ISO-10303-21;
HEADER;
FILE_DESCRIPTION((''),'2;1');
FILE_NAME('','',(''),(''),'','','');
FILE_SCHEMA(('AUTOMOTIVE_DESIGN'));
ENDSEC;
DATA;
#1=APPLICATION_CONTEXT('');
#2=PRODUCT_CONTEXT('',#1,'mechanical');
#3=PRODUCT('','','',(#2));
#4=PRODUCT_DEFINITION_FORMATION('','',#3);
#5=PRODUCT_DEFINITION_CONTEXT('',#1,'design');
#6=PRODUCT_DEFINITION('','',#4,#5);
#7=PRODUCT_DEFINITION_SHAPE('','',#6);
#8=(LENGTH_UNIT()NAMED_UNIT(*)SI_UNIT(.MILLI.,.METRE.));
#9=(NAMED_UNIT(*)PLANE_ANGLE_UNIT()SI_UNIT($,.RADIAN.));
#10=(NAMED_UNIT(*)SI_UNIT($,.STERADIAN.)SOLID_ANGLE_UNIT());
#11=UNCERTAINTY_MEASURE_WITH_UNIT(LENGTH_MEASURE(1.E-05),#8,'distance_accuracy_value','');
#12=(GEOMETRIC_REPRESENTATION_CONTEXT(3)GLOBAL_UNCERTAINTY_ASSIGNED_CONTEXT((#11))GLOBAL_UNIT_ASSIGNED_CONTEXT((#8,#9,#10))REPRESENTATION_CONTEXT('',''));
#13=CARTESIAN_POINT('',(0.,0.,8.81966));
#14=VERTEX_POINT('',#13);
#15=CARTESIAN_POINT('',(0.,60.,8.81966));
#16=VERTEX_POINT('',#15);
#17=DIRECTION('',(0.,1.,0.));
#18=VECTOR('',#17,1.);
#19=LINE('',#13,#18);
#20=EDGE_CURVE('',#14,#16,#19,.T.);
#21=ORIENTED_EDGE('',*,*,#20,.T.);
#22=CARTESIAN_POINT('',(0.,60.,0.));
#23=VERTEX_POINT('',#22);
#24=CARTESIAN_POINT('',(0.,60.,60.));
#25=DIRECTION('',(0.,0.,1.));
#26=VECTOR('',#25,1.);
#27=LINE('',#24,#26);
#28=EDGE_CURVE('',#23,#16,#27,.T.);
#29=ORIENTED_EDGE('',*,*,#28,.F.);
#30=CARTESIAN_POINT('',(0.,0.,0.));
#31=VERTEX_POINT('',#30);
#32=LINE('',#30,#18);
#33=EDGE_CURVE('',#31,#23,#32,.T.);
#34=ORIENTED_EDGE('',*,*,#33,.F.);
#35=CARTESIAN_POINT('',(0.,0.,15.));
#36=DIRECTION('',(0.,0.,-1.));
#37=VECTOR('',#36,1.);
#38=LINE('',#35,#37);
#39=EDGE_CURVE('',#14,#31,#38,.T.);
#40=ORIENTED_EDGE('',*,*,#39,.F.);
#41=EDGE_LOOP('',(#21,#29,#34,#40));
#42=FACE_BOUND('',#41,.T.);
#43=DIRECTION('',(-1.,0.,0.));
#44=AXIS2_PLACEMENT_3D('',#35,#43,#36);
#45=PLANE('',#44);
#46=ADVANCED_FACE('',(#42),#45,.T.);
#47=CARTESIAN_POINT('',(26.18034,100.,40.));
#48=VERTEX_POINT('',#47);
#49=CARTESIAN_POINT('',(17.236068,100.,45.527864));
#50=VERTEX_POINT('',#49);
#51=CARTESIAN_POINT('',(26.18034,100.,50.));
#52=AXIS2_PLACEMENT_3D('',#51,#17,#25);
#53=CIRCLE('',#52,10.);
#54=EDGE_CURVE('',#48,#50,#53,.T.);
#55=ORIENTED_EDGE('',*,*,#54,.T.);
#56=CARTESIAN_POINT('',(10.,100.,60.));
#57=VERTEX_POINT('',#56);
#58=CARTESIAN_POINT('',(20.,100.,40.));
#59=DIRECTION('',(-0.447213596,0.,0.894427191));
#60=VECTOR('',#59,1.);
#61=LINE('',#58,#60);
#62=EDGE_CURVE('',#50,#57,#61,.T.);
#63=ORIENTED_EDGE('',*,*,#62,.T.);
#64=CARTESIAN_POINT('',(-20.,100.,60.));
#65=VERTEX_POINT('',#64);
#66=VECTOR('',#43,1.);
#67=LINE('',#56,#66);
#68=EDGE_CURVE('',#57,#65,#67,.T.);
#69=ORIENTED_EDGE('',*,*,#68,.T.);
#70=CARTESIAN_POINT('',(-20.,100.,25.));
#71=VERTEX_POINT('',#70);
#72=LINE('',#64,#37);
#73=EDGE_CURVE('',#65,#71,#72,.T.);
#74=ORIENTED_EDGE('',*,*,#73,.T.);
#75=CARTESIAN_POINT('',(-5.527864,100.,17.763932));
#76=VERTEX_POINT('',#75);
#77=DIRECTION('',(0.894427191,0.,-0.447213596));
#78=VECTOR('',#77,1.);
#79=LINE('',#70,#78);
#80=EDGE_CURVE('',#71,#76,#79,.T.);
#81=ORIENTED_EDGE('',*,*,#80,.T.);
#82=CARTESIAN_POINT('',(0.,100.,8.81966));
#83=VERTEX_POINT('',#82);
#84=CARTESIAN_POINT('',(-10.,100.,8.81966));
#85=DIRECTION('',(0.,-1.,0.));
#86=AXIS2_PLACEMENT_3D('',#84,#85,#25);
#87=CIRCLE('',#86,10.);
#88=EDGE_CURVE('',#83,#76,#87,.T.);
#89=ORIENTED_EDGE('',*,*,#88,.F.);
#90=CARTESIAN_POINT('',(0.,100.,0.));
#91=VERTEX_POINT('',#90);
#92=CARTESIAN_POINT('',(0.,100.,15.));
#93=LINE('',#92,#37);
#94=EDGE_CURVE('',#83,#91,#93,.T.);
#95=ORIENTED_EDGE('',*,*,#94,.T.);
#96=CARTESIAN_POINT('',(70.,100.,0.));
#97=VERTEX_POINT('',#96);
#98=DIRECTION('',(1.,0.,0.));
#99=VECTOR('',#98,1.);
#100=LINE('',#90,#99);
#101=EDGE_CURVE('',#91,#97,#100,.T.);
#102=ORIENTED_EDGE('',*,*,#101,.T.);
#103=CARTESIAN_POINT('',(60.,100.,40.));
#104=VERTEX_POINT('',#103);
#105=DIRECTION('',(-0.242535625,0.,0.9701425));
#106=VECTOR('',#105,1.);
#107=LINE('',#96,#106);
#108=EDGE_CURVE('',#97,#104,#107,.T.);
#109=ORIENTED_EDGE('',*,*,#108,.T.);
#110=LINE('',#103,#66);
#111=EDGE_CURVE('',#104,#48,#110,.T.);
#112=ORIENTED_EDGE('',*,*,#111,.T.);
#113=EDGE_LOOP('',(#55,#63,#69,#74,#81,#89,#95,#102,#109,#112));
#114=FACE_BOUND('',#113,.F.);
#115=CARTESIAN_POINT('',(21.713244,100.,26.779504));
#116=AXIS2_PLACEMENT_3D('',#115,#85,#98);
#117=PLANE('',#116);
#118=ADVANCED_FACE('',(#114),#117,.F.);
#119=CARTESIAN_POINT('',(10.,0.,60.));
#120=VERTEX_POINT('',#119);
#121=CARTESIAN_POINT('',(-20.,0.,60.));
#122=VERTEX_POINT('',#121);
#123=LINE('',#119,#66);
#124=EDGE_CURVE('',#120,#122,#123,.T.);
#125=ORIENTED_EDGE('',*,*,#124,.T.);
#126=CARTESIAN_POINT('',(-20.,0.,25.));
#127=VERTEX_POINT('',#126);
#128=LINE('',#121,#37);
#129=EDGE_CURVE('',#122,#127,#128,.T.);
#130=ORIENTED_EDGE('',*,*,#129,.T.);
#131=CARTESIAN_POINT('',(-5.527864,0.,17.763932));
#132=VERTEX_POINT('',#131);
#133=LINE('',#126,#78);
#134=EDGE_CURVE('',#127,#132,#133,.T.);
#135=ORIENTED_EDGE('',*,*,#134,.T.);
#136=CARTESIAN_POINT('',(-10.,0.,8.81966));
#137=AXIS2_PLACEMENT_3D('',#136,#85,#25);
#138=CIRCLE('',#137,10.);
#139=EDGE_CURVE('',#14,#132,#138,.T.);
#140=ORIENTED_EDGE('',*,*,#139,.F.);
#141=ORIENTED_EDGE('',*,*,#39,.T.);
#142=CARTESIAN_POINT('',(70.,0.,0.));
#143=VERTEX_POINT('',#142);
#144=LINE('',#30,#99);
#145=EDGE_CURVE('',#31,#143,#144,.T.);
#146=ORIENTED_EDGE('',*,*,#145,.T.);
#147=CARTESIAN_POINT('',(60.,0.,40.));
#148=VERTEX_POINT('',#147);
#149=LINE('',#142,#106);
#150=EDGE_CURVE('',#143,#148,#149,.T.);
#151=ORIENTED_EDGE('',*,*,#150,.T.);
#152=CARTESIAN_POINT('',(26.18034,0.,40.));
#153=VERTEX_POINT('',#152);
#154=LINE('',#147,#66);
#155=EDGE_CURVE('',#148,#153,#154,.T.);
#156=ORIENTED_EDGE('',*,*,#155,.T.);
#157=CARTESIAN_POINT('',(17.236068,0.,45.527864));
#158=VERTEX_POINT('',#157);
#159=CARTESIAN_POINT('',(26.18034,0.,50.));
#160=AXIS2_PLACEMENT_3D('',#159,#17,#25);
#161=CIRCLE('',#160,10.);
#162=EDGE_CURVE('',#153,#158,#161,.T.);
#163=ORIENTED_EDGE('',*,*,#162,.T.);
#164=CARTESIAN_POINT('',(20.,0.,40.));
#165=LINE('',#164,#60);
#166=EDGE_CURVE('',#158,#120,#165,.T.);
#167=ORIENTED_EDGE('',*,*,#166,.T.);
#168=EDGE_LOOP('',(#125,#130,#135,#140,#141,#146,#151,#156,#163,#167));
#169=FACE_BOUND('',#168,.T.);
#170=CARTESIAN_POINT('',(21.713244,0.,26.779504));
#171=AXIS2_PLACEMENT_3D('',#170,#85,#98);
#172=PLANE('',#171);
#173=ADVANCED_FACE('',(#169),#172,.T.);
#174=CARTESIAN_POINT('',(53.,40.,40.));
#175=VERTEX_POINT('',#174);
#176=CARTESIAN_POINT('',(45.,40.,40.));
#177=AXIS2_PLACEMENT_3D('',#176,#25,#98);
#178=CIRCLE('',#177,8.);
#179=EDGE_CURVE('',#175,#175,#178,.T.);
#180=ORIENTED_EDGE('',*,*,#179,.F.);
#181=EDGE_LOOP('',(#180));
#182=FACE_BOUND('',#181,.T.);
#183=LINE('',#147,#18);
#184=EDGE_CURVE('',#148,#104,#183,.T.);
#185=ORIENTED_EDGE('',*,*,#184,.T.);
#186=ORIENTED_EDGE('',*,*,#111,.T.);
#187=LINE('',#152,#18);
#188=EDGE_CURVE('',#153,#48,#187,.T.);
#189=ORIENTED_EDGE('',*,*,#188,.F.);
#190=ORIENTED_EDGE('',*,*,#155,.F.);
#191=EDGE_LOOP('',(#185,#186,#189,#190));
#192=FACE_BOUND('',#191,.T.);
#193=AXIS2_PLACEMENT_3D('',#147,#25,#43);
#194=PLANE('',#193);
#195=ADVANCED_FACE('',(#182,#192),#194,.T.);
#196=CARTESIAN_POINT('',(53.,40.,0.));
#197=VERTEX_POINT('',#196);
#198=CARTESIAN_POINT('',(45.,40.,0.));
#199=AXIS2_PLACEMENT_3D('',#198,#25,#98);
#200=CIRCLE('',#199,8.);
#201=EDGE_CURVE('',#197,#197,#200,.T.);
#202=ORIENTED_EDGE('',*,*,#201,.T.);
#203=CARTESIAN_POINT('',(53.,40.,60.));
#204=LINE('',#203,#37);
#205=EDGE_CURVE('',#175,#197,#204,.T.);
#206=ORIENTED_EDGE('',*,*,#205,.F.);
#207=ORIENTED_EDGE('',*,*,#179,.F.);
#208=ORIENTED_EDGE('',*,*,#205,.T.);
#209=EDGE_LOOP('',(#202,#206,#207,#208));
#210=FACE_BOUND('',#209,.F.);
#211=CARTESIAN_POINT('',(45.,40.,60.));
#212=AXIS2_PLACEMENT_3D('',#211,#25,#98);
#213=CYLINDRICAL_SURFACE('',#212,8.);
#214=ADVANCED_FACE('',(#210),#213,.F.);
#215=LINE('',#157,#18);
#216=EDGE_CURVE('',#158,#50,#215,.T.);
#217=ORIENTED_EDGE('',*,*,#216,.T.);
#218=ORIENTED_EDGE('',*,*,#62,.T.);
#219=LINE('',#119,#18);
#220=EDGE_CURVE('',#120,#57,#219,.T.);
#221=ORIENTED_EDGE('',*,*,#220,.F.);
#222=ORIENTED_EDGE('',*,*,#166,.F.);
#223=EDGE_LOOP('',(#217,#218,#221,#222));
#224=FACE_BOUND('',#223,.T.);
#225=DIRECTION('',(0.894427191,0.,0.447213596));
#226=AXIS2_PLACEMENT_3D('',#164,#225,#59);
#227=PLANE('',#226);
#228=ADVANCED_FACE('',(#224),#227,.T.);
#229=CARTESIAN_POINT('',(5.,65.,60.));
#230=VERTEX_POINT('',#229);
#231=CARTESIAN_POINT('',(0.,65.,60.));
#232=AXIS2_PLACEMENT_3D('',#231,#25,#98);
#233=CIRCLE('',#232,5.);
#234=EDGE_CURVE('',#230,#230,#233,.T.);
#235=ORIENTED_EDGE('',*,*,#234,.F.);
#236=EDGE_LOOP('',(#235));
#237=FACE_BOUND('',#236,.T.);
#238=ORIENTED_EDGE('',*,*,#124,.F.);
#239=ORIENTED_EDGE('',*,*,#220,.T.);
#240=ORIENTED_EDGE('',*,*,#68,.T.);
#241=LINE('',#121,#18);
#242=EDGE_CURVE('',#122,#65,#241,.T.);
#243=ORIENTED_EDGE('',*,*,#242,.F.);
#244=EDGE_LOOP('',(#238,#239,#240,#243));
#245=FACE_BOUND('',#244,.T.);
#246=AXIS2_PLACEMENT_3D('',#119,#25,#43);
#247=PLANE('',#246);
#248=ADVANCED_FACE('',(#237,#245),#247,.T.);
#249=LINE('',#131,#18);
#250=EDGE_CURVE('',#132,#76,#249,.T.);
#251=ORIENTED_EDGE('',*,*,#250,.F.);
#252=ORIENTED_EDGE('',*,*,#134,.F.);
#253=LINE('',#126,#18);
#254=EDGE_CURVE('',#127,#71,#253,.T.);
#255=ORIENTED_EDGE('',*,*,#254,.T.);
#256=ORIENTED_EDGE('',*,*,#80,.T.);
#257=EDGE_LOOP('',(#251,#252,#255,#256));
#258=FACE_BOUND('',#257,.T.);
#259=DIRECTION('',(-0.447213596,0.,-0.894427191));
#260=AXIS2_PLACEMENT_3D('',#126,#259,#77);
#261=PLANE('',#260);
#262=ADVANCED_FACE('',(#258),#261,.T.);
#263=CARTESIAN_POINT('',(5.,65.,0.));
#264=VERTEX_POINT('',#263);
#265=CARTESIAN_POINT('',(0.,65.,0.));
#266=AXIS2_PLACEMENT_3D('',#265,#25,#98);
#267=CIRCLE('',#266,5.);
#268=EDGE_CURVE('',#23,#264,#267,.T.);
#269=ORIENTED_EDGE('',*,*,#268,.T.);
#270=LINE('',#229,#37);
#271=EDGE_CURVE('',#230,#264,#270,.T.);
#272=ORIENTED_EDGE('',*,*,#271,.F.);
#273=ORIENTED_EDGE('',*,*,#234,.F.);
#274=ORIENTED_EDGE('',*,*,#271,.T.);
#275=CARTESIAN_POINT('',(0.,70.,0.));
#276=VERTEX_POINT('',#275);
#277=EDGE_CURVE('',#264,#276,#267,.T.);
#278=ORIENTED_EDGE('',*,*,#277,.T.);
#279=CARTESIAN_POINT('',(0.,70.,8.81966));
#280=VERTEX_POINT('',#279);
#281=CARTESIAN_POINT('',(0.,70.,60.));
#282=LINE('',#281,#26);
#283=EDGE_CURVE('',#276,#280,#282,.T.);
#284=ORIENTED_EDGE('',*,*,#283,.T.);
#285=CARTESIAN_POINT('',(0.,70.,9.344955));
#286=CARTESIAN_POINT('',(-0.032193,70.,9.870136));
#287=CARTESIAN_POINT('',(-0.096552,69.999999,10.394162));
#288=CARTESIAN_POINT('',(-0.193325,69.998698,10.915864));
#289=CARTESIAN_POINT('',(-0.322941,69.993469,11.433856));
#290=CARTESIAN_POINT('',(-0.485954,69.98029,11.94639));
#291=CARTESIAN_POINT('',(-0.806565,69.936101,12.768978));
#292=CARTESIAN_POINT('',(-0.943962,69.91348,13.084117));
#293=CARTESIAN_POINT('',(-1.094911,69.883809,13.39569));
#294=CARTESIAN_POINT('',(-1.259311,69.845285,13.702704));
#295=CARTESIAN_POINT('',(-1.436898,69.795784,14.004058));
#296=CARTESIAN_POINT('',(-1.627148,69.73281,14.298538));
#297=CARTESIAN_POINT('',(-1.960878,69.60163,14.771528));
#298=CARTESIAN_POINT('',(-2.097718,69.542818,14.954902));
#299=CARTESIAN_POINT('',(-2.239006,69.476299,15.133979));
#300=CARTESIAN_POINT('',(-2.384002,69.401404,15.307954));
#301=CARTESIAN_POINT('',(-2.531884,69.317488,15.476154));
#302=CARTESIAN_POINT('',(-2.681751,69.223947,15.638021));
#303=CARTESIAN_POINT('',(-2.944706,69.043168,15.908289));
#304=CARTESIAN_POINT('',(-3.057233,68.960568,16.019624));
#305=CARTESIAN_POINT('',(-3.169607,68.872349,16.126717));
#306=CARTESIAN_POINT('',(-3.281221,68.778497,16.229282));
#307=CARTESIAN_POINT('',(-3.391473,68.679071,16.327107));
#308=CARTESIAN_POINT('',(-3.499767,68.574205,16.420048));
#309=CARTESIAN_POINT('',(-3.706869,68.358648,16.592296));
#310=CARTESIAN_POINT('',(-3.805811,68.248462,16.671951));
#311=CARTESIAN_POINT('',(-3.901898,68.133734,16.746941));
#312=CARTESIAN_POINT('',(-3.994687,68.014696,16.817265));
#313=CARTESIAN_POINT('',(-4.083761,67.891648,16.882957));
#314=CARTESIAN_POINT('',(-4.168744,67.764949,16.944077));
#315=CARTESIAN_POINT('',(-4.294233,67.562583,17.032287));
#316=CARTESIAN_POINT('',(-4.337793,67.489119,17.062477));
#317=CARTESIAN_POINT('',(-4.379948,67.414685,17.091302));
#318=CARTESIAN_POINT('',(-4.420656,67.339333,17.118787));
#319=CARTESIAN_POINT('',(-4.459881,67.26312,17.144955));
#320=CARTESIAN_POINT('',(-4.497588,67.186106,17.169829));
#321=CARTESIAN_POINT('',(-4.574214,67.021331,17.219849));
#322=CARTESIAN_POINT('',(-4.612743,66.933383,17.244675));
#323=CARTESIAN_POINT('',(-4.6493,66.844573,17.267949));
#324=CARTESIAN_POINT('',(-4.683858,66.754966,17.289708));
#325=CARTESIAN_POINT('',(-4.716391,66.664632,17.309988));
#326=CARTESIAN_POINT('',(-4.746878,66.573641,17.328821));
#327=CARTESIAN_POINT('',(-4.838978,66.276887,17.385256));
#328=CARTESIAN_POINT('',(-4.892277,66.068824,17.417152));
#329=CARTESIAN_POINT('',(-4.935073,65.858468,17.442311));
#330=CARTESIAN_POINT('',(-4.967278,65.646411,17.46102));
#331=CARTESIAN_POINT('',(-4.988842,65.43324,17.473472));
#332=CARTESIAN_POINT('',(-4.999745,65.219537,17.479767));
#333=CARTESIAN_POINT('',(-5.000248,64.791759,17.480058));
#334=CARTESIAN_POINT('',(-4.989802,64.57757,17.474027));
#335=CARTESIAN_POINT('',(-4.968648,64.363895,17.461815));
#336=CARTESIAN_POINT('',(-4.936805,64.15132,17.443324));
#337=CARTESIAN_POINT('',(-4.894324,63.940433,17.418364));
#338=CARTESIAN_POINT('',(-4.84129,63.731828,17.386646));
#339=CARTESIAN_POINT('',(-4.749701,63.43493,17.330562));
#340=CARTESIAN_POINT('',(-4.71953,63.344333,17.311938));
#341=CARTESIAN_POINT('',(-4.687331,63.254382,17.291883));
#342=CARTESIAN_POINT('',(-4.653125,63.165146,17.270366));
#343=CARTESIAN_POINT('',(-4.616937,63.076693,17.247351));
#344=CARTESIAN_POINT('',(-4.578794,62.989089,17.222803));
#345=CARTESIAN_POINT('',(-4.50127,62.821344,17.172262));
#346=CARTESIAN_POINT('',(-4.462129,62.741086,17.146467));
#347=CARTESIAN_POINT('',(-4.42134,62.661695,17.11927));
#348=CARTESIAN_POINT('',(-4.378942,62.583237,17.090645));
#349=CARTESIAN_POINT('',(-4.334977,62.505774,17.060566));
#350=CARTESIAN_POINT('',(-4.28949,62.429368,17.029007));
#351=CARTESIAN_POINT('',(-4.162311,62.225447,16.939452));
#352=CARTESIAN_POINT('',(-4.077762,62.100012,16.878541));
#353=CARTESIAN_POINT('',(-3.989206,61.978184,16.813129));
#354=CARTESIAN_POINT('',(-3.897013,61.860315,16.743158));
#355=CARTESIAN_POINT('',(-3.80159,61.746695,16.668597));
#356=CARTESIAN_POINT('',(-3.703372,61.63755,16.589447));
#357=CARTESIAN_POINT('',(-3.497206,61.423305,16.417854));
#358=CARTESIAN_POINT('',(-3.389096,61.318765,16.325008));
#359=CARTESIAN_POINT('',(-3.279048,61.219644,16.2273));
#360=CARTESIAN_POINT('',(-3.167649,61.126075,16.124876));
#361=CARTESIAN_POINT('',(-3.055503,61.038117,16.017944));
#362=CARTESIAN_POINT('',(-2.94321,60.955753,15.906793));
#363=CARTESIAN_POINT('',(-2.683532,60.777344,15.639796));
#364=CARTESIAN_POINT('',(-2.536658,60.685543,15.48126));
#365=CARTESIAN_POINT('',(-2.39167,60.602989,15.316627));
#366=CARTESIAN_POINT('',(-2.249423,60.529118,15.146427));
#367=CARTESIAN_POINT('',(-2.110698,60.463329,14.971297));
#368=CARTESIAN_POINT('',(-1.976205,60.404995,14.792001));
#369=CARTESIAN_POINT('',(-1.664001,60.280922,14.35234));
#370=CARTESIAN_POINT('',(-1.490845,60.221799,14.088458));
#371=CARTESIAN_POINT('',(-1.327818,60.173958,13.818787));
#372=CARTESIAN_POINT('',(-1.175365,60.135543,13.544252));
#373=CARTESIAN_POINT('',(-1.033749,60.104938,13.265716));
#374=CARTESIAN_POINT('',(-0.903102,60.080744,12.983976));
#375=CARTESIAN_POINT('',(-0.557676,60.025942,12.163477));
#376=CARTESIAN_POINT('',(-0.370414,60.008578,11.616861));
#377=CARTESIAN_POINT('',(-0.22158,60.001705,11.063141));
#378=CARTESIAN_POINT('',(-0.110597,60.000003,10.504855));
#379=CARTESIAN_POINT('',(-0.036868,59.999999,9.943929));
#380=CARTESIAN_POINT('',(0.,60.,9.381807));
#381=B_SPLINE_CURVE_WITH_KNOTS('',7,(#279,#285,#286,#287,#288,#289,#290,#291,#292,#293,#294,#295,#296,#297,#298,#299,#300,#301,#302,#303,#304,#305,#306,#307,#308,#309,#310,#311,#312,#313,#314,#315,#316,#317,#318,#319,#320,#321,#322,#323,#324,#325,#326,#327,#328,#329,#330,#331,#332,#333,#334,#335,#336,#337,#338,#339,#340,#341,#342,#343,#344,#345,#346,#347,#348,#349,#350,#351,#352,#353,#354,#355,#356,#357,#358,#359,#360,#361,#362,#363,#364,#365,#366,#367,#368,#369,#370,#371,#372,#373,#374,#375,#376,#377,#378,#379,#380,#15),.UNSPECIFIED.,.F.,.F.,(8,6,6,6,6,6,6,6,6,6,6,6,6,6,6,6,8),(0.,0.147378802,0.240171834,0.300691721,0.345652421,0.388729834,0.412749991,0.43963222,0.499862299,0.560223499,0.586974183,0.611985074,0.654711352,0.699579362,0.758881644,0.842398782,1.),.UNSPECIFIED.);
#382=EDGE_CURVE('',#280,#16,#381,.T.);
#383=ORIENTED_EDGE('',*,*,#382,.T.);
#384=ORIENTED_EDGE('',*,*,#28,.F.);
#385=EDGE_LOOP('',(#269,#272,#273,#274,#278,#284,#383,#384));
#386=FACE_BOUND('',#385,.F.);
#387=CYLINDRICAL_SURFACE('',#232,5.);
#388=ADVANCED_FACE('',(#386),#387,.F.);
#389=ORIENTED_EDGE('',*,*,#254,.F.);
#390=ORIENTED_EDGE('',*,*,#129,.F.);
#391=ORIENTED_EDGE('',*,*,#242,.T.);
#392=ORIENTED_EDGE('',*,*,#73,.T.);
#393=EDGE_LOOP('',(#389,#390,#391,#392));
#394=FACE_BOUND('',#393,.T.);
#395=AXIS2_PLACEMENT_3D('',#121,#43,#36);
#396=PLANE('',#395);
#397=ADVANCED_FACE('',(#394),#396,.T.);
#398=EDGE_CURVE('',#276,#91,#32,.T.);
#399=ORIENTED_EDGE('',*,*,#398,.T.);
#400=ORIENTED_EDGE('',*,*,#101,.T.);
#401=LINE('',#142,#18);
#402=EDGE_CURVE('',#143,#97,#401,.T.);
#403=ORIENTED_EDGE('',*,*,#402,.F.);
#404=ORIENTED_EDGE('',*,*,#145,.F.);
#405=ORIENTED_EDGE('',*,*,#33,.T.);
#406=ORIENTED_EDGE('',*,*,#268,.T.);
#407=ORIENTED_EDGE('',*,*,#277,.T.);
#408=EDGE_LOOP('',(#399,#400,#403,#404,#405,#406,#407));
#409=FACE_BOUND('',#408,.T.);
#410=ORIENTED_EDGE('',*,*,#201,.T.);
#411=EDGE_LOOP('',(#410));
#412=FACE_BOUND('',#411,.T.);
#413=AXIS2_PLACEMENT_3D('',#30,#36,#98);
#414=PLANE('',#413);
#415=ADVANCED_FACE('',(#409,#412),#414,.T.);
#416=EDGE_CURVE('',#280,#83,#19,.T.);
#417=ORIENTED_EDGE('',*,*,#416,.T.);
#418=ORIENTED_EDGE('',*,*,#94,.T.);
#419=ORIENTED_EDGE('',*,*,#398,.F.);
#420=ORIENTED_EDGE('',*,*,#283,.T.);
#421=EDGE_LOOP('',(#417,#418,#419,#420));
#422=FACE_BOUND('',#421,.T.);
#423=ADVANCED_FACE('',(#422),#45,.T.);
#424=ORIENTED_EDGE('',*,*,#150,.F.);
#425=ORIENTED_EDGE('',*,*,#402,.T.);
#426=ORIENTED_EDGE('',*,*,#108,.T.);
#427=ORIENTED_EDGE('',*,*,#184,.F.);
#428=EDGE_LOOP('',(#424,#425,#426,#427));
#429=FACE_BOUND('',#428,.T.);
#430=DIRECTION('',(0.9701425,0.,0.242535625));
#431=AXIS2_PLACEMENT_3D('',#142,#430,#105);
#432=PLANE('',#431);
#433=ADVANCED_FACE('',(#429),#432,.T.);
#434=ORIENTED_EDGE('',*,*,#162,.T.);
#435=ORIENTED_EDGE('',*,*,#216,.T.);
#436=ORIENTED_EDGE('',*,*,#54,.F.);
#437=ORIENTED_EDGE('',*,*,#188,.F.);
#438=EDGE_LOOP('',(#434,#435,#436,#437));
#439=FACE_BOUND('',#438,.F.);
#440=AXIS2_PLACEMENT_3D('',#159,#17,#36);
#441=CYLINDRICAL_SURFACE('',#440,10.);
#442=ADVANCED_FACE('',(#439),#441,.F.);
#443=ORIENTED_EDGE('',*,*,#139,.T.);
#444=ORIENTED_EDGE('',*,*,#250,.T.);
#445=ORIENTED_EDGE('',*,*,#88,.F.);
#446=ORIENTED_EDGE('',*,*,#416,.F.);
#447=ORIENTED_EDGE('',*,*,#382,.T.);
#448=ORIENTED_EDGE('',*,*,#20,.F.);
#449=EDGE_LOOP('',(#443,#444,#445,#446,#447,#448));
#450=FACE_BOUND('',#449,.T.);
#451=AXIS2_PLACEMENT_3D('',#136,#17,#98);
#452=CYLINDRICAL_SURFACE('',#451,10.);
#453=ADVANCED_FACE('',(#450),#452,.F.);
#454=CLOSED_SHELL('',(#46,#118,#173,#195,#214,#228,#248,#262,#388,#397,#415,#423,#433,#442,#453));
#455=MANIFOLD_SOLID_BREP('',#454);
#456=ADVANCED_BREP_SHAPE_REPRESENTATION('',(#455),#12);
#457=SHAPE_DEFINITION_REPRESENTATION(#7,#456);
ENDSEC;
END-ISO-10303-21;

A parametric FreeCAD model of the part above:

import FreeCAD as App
import Part
import Sketcher
Q = App.Units.Quantity


def edges_at(feature, points):
    """Names of the edges that pass closest to the given points."""
    edges = feature.Shape.Edges
    near = lambda p: min(range(len(edges)), key=lambda i: edges[i].distToShape(Part.Vertex(*p))[0])
    return sorted({f"Edge{near(p) + 1}" for p in points})


def add_polygon(sketch, points):
    """Adds a closed chain of lines whose ends are joined by coincident constraints."""
    first, n = sketch.GeometryCount, len(points)
    for a, b in zip(points, points[1:] + points[:1]):
        sketch.addGeometry(Part.LineSegment(App.Vector(*a, 0), App.Vector(*b, 0)), False)
    for i in range(n):
        sketch.addConstraint(Sketcher.Constraint("Coincident", first + i, 2, first + (i + 1) % n, 1))

doc = App.newDocument("Part")
body = doc.addObject("PartDesign::Body", "Body")

sketch1 = doc.addObject("Sketcher::SketchObject", "Sketch")
body.addObject(sketch1)
sketch1.AttachmentSupport = (doc.XZ_Plane, [""])
sketch1.MapMode = "FlatFace"
add_polygon(sketch1, [(0, 15), (0, 0), (70, 0), (60, 40), (20, 40), (10, 60), (-20, 60), (-20, 25)])
sketch1.addConstraint(Sketcher.Constraint("Vertical", 0))
sketch1.addConstraint(Sketcher.Constraint("Horizontal", 1))
sketch1.addConstraint(Sketcher.Constraint("Horizontal", 3))
sketch1.addConstraint(Sketcher.Constraint("Horizontal", 5))
sketch1.addConstraint(Sketcher.Constraint("Vertical", 6))
sketch1.addConstraint(Sketcher.Constraint("Coincident", 0, 2, -1, 1))
sketch1.addConstraint(Sketcher.Constraint("Equal", 4, 7))
sketch1.addConstraint(Sketcher.Constraint("DistanceX", 1, 1, 1, 2, Q("70 mm")))
sketch1.addConstraint(Sketcher.Constraint("DistanceX", 3, 2, 3, 1, Q("40 mm")))
sketch1.addConstraint(Sketcher.Constraint("DistanceX", 5, 2, 5, 1, Q("30 mm")))
sketch1.addConstraint(Sketcher.Constraint("DistanceY", 0, 2, 0, 1, Q("15 mm")))
sketch1.addConstraint(Sketcher.Constraint("DistanceY", 6, 2, 6, 1, Q("35 mm")))
sketch1.addConstraint(Sketcher.Constraint("DistanceX", -1, 1, 2, 2, Q("60 mm")))
sketch1.addConstraint(Sketcher.Constraint("DistanceY", -1, 1, 2, 2, Q("40 mm")))
sketch1.addConstraint(Sketcher.Constraint("DistanceX", -1, 1, 4, 2, Q("10 mm")))
pad1 = doc.addObject("PartDesign::Pad", "Pad")
body.addObject(pad1)
pad1.Profile = sketch1
pad1.Length = 100
pad1.Reversed = True
doc.recompute()

fillet = doc.addObject("PartDesign::Fillet", "Fillet")
body.addObject(fillet)
fillet.Base = (pad1, edges_at(pad1, [(20, 50, 40), (0, 50, 15)]))
fillet.Radius = 10

sketch2 = doc.addObject("Sketcher::SketchObject", "Sketch001")
body.addObject(sketch2)
sketch2.AttachmentSupport = (doc.XY_Plane, [""])
sketch2.MapMode = "FlatFace"
sketch2.AttachmentOffset = App.Placement(App.Vector(0, 0, 60), App.Rotation())
sketch2.addGeometry(Part.Circle(App.Vector(0, 65, 0), App.Vector(0, 0, 1), 5), False)
sketch2.addGeometry(Part.Circle(App.Vector(45, 40, 0), App.Vector(0, 0, 1), 8), False)
sketch2.addConstraint(Sketcher.Constraint("PointOnObject", 0, 3, -2))
sketch2.addConstraint(Sketcher.Constraint("Diameter", 0, Q("10 mm")))
sketch2.addConstraint(Sketcher.Constraint("Diameter", 1, Q("16 mm")))
sketch2.addConstraint(Sketcher.Constraint("DistanceY", -1, 1, 0, 3, Q("65 mm")))
sketch2.addConstraint(Sketcher.Constraint("DistanceX", -1, 1, 1, 3, Q("45 mm")))
sketch2.addConstraint(Sketcher.Constraint("DistanceY", -1, 1, 1, 3, Q("40 mm")))
pocket1 = doc.addObject("PartDesign::Pocket", "Pocket")
body.addObject(pocket1)
pocket1.Profile = sketch2
pocket1.Type = "ThroughAll"

doc.recompute()
